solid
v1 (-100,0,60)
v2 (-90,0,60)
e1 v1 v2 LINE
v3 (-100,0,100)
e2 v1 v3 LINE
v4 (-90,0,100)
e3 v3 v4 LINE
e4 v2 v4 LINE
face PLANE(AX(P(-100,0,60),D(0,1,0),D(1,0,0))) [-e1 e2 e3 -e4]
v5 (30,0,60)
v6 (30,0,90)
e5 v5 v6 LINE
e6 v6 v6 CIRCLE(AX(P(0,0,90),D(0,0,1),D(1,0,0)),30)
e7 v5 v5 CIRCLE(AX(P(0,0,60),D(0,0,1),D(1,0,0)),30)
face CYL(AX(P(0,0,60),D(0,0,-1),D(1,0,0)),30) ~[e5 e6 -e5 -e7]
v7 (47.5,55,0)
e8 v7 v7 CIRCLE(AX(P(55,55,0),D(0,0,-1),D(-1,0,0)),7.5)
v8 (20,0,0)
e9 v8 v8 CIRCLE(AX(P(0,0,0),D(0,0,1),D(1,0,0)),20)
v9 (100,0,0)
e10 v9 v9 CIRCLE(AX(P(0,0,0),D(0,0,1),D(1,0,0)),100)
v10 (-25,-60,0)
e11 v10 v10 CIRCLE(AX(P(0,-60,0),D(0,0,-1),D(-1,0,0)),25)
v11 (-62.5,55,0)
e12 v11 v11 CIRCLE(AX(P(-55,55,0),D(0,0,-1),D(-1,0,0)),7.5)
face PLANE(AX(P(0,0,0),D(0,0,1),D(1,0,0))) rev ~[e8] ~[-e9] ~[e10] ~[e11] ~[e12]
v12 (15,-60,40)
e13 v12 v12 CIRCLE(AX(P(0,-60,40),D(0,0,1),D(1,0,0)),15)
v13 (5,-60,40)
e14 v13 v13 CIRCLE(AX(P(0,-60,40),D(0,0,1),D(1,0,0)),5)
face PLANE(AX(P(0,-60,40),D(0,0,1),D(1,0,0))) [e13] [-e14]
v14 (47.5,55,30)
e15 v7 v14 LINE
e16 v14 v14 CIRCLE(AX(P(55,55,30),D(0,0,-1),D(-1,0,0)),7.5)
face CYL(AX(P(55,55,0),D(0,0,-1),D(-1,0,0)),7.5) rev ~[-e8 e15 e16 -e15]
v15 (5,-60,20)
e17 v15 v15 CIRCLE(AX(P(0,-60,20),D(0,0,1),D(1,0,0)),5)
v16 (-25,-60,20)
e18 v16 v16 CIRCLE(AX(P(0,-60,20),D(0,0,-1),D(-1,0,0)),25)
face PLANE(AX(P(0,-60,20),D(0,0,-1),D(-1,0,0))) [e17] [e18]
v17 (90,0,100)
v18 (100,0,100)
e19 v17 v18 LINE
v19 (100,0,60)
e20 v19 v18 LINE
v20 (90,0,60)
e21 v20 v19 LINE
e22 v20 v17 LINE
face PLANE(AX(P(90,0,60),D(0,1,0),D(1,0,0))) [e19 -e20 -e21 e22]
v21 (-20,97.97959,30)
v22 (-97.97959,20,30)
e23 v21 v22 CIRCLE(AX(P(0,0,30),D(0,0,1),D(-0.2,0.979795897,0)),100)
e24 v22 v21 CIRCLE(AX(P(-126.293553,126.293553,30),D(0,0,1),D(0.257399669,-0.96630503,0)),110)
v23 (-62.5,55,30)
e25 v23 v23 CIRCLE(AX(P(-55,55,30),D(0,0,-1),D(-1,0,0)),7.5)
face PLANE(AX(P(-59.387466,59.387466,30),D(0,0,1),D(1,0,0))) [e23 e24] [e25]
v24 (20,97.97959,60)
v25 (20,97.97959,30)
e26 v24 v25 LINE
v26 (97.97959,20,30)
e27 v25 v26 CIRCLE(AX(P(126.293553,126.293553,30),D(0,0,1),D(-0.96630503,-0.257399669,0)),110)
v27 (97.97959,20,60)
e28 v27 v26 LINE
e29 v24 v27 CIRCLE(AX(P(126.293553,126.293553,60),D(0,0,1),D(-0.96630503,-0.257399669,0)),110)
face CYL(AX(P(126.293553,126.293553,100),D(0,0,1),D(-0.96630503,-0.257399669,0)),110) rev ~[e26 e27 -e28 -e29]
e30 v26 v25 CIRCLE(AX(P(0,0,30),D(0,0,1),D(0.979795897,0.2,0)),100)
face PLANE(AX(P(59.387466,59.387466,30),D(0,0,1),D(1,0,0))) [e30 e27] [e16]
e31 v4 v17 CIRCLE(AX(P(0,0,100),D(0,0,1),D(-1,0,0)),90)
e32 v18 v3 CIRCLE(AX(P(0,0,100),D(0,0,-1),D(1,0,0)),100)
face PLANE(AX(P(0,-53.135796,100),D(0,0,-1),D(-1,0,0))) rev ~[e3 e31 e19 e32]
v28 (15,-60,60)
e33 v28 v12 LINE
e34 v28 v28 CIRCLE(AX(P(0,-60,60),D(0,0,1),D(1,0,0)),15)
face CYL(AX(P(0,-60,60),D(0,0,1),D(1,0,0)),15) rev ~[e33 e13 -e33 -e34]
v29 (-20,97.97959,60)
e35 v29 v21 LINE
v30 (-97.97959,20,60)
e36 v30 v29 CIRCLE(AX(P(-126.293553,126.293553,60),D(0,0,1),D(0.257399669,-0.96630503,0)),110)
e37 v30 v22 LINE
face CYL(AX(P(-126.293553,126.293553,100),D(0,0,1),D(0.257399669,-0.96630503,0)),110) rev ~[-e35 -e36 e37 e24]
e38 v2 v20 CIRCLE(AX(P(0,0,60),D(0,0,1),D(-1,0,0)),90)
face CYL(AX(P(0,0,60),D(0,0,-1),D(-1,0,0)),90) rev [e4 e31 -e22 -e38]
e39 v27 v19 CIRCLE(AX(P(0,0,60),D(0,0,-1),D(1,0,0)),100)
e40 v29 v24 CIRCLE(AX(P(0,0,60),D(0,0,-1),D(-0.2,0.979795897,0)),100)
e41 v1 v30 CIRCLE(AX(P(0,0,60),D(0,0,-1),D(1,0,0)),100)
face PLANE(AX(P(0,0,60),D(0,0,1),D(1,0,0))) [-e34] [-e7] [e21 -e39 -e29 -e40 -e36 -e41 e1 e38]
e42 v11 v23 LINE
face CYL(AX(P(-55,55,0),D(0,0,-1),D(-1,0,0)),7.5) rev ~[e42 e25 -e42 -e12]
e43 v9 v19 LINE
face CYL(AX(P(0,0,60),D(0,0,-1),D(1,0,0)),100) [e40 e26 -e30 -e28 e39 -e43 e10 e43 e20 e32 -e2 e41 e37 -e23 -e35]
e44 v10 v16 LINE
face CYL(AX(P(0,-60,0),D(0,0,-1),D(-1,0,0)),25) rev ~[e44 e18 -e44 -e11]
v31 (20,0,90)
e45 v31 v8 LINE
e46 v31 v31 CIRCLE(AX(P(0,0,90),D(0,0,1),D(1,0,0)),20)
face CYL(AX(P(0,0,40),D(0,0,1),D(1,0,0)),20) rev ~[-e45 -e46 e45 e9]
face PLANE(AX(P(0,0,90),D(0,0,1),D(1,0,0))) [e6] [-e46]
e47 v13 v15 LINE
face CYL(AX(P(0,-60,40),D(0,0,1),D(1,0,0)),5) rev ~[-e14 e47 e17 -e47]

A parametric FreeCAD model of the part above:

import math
import FreeCAD as App
import Part
import Sketcher

V = App.Vector


def add_polygon(sketch, points):
    """Adds a closed chain of lines whose ends are joined by coincident constraints."""
    first, n = sketch.GeometryCount, len(points)
    for a, b in zip(points, points[1:] + points[:1]):
        sketch.addGeometry(Part.LineSegment(App.Vector(*a, 0), App.Vector(*b, 0)), False)
    for i in range(n):
        sketch.addConstraint(Sketcher.Constraint("Coincident", first + i, 2, first + (i + 1) % n, 1))

doc = App.newDocument("Part")
params = doc.addObject("Spreadsheet::Sheet", "Params")
for row, (alias, value) in enumerate([
    ("sketch1_diameter", "200 mm"),
    ("pad1_length", "100 mm"),
    ("sketch2_diameter", "15 mm"),
    ("pocket1_length", "30 mm"),
    ("sketch3_radius", "110 mm"),
    ("sketch3_radius2", "100 mm"),
    ("pocket2_length", "70 mm"),
    ("sketch4_width", "200 mm"),
    ("pocket3_length", "70 mm"),
    ("sketch5_radius", "100 mm"),
    ("sketch5_radius2", "90 mm"),
    ("pad2_length", "40 mm"),
    ("sketch6_diameter", "30 mm"),
    ("pocket4_length", "20 mm"),
    ("sketch7_diameter", "10 mm"),
    ("pocket5_length", "89 mm"),
    ("sketch8_diameter", "50 mm"),
    ("pocket6_length", "20 mm"),
    ("sketch9_diameter", "60 mm"),
    ("pad3_length", "30 mm"),
    ("sketch10_diameter", "40 mm"),
    ("pocket7_length", "50 mm"),
    ("sketch11_diameter", "40 mm"),
    ("pocket8_length", "50 mm"),
], start=1):
    params.set(f"A{row}", alias)
    params.set(f"B{row}", "=" + value)
    params.setAlias(f"B{row}", alias)

body = doc.addObject("PartDesign::Body", "Body")

sketch1 = body.newObject("Sketcher::SketchObject", "Sketch")
sketch1.AttachmentSupport = (doc.getObject("XY_Plane"), [""])
sketch1.MapMode = "FlatFace"
sketch1.addGeometry(Part.Circle(V(0, 0, 0), V(0, 0, 1), 100), False)
sketch1.addConstraint([
    Sketcher.Constraint("Coincident", 0, 3, -1, 1),
    Sketcher.Constraint("Diameter", 0, 200.0),
])
sketch1.setExpression("Constraints[1]", "Params.sketch1_diameter")
pad1 = body.newObject("PartDesign::Pad", "Pad")
pad1.Profile = sketch1
pad1.setExpression("Length", "Params.pad1_length")

sketch2 = body.newObject("Sketcher::SketchObject", "Sketch001")
sketch2.AttachmentSupport = (doc.getObject("XY_Plane"), [""])
sketch2.MapMode = "FlatFace"
sketch2.addGeometry([
    Part.Circle(V(55, 55, 0), V(0, 0, 1), 8),
    Part.Circle(V(-55, 55, 0), V(0, 0, 1), 8),
], False)
sketch2.addConstraint([
    Sketcher.Constraint("Equal", 0, 1),
    Sketcher.Constraint("Symmetric", 0, 3, 1, 3, -2),
    Sketcher.Constraint("Diameter", 0, 15.0),
    Sketcher.Constraint("DistanceX", -1, 1, 0, 3, 55.0),
    Sketcher.Constraint("DistanceY", -1, 1, 0, 3, 55.0),
])
sketch2.setExpression("Constraints[2]", "Params.sketch2_diameter")
pocket1 = body.newObject("PartDesign::Pocket", "Pocket")
pocket1.Profile = sketch2
pocket1.setExpression("Length", "Params.pocket1_length")
pocket1.Reversed = True

sketch3 = body.newObject("Sketcher::SketchObject", "Sketch002")
sketch3.AttachmentSupport = (doc.getObject("XY_Plane"), [""])
sketch3.MapMode = "FlatFace"
sketch3.AttachmentOffset = App.Placement(V(0, 0, 100), App.Rotation())
sketch3.addGeometry([
    Part.ArcOfCircle(Part.Circle(V(-126, 126, 0), V(0, 0, 1), 110), math.radians(-75), math.radians(-15)),
    Part.ArcOfCircle(Part.Circle(V(0, 0, 0), V(0, 0, 1), 100), math.radians(102), math.radians(168)),
    Part.ArcOfCircle(Part.Circle(V(0, 0, 0), V(0, 0, 1), 100), math.radians(12), math.radians(78)),
    Part.ArcOfCircle(Part.Circle(V(126, 126, 0), V(0, 0, 1), 110), math.radians(-165), math.radians(-105)),
], False)
sketch3.addConstraint([
    Sketcher.Constraint("Coincident", 0, 1, 1, 2),
    Sketcher.Constraint("Coincident", 1, 1, 0, 2),
    Sketcher.Constraint("Coincident", 2, 1, 3, 2),
    Sketcher.Constraint("Coincident", 3, 1, 2, 2),
    Sketcher.Constraint("Coincident", 1, 3, -1, 1),
    Sketcher.Constraint("Coincident", 2, 3, -1, 1),
    Sketcher.Constraint("Equal", 1, 2),
    Sketcher.Constraint("Equal", 0, 3),
    Sketcher.Constraint("Symmetric", 0, 3, 3, 3, -2),
    Sketcher.Constraint("Radius", 0, 110.0),
    Sketcher.Constraint("Radius", 1, 100.0),
    Sketcher.Constraint("DistanceY", -1, 1, 0, 1, 20.0),
    Sketcher.Constraint("DistanceX", 1, 1, -1, 1, 20.0),
])
sketch3.setExpression("Constraints[9]", "Params.sketch3_radius")
sketch3.setExpression("Constraints[10]", "Params.sketch3_radius2")
pocket2 = body.newObject("PartDesign::Pocket", "Pocket001")
pocket2.Profile = sketch3
pocket2.setExpression("Length", "Params.pocket2_length")

sketch4 = body.newObject("Sketcher::SketchObject", "Sketch003")
sketch4.AttachmentSupport = (doc.getObject("XY_Plane"), [""])
sketch4.MapMode = "FlatFace"
sketch4.AttachmentOffset = App.Placement(V(0, 0, 60), App.Rotation())
add_polygon(sketch4, [(-100, 100), (-100, -100), (100, -100), (100, 100)])
sketch4.addConstraint([
    Sketcher.Constraint("Vertical", 0),
    Sketcher.Constraint("Horizontal", 1),
    Sketcher.Constraint("Vertical", 2),
    Sketcher.Constraint("Horizontal", 3),
    Sketcher.Constraint("Symmetric", 0, 2, 2, 2, -1, 1),
    Sketcher.Constraint("Equal", 3, 0),
    Sketcher.Constraint("DistanceX", 1, 1, 1, 2, 200.0),
])
sketch4.setExpression("Constraints[10]", "Params.sketch4_width")
pocket3 = body.newObject("PartDesign::Pocket", "Pocket002")
pocket3.Profile = sketch4
pocket3.setExpression("Length", "Params.pocket3_length")
pocket3.Reversed = True

sketch5 = body.newObject("Sketcher::SketchObject", "Sketch004")
sketch5.AttachmentSupport = (doc.getObject("XY_Plane"), [""])
sketch5.MapMode = "FlatFace"
sketch5.AttachmentOffset = App.Placement(V(0, 0, 60), App.Rotation())
sketch5.addGeometry([
    Part.LineSegment(V(-90, 0, 0), V(-100, 0, 0)),
    Part.ArcOfCircle(Part.Circle(V(0, 0, 0), V(0, 0, 1), 100), math.radians(180), math.radians(360)),
    Part.LineSegment(V(100, 0, 0), V(90, 0, 0)),
    Part.ArcOfCircle(Part.Circle(V(0, 0, 0), V(0, 0, 1), 90), math.radians(180), math.radians(360)),
], False)
sketch5.addConstraint([
    Sketcher.Constraint("Coincident", 0, 2, 1, 1),
    Sketcher.Constraint("Coincident", 1, 2, 2, 1),
    Sketcher.Constraint("Coincident", 2, 2, 3, 2),
    Sketcher.Constraint("Coincident", 3, 1, 0, 1),
    Sketcher.Constraint("Horizontal", 0),
    Sketcher.Constraint("Horizontal", 2),
    Sketcher.Constraint("Coincident", 1, 3, -1, 1),
    Sketcher.Constraint("Coincident", 3, 3, -1, 1),
    Sketcher.Constraint("PointOnObject", 0, 2, -1),
    Sketcher.Constraint("PointOnObject", 1, 2, -1),
    Sketcher.Constraint("Radius", 1, 100.0),
    Sketcher.Constraint("Radius", 3, 90.0),
])
sketch5.setExpression("Constraints[10]", "Params.sketch5_radius")
sketch5.setExpression("Constraints[11]", "Params.sketch5_radius2")
pad2 = body.newObject("PartDesign::Pad", "Pad001")
pad2.Profile = sketch5
pad2.setExpression("Length", "Params.pad2_length")

sketch6 = body.newObject("Sketcher::SketchObject", "Sketch005")
sketch6.AttachmentSupport = (doc.getObject("XY_Plane"), [""])
sketch6.MapMode = "FlatFace"
sketch6.AttachmentOffset = App.Placement(V(0, 0, 60), App.Rotation())
sketch6.addGeometry(Part.Circle(V(0, -60, 0), V(0, 0, 1), 15), False)
sketch6.addConstraint([
    Sketcher.Constraint("PointOnObject", 0, 3, -2),
    Sketcher.Constraint("Diameter", 0, 30.0),
    Sketcher.Constraint("DistanceY", 0, 3, -1, 1, 60.0),
])
sketch6.setExpression("Constraints[1]", "Params.sketch6_diameter")
pocket4 = body.newObject("PartDesign::Pocket", "Pocket003")
pocket4.Profile = sketch6
pocket4.setExpression("Length", "Params.pocket4_length")

sketch7 = body.newObject("Sketcher::SketchObject", "Sketch006")
sketch7.AttachmentSupport = (doc.getObject("XY_Plane"), [""])
sketch7.MapMode = "FlatFace"
sketch7.AttachmentOffset = App.Placement(V(0, 0, 40), App.Rotation())
sketch7.addGeometry(Part.Circle(V(0, -60, 0), V(0, 0, 1), 5), False)
sketch7.addConstraint([
    Sketcher.Constraint("PointOnObject", 0, 3, -2),
    Sketcher.Constraint("Diameter", 0, 10.0),
    Sketcher.Constraint("DistanceY", 0, 3, -1, 1, 60.0),
])
sketch7.setExpression("Constraints[1]", "Params.sketch7_diameter")
pocket5 = body.newObject("PartDesign::Pocket", "Pocket004")
pocket5.Profile = sketch7
pocket5.setExpression("Length", "Params.pocket5_length")

sketch8 = body.newObject("Sketcher::SketchObject", "Sketch007")
sketch8.AttachmentSupport = (doc.getObject("XY_Plane"), [""])
sketch8.MapMode = "FlatFace"
sketch8.addGeometry(Part.Circle(V(0, -60, 0), V(0, 0, 1), 25), False)
sketch8.addConstraint([
    Sketcher.Constraint("PointOnObject", 0, 3, -2),
    Sketcher.Constraint("Diameter", 0, 50.0),
    Sketcher.Constraint("DistanceY", 0, 3, -1, 1, 60.0),
])
sketch8.setExpression("Constraints[1]", "Params.sketch8_diameter")
pocket6 = body.newObject("PartDesign::Pocket", "Pocket005")
pocket6.Profile = sketch8
pocket6.setExpression("Length", "Params.pocket6_length")
pocket6.Reversed = True

sketch9 = body.newObject("Sketcher::SketchObject", "Sketch008")
sketch9.AttachmentSupport = (doc.getObject("XY_Plane"), [""])
sketch9.MapMode = "FlatFace"
sketch9.AttachmentOffset = App.Placement(V(0, 0, 60), App.Rotation())
sketch9.addGeometry(Part.Circle(V(0, 0, 0), V(0, 0, 1), 30), False)
sketch9.addConstraint([
    Sketcher.Constraint("Coincident", 0, 3, -1, 1),
    Sketcher.Constraint("Diameter", 0, 60.0),
])
sketch9.setExpression("Constraints[1]", "Params.sketch9_diameter")
pad3 = body.newObject("PartDesign::Pad", "Pad002")
pad3.Profile = sketch9
pad3.setExpression("Length", "Params.pad3_length")

sketch10 = body.newObject("Sketcher::SketchObject", "Sketch009")
sketch10.AttachmentSupport = (doc.getObject("XY_Plane"), [""])
sketch10.MapMode = "FlatFace"
sketch10.AttachmentOffset = App.Placement(V(0, 0, 90), App.Rotation())
sketch10.addGeometry(Part.Circle(V(0, 0, 0), V(0, 0, 1), 20), False)
sketch10.addConstraint([
    Sketcher.Constraint("Coincident", 0, 3, -1, 1),
    Sketcher.Constraint("Diameter", 0, 40.0),
])
sketch10.setExpression("Constraints[1]", "Params.sketch10_diameter")
pocket7 = body.newObject("PartDesign::Pocket", "Pocket006")
pocket7.Profile = sketch10
pocket7.setExpression("Length", "Params.pocket7_length")

sketch11 = body.newObject("Sketcher::SketchObject", "Sketch010")
sketch11.AttachmentSupport = (doc.getObject("XY_Plane"), [""])
sketch11.MapMode = "FlatFace"
sketch11.AttachmentOffset = App.Placement(V(0, 0, 40), App.Rotation())
sketch11.addGeometry(Part.Circle(V(0, 0, 0), V(0, 0, 1), 20), False)
sketch11.addConstraint([
    Sketcher.Constraint("Coincident", 0, 3, -1, 1),
    Sketcher.Constraint("Diameter", 0, 40.0),
])
sketch11.setExpression("Constraints[1]", "Params.sketch11_diameter")
pocket8 = body.newObject("PartDesign::Pocket", "Pocket007")
pocket8.Profile = sketch11
pocket8.setExpression("Length", "Params.pocket8_length")

doc.recompute()
